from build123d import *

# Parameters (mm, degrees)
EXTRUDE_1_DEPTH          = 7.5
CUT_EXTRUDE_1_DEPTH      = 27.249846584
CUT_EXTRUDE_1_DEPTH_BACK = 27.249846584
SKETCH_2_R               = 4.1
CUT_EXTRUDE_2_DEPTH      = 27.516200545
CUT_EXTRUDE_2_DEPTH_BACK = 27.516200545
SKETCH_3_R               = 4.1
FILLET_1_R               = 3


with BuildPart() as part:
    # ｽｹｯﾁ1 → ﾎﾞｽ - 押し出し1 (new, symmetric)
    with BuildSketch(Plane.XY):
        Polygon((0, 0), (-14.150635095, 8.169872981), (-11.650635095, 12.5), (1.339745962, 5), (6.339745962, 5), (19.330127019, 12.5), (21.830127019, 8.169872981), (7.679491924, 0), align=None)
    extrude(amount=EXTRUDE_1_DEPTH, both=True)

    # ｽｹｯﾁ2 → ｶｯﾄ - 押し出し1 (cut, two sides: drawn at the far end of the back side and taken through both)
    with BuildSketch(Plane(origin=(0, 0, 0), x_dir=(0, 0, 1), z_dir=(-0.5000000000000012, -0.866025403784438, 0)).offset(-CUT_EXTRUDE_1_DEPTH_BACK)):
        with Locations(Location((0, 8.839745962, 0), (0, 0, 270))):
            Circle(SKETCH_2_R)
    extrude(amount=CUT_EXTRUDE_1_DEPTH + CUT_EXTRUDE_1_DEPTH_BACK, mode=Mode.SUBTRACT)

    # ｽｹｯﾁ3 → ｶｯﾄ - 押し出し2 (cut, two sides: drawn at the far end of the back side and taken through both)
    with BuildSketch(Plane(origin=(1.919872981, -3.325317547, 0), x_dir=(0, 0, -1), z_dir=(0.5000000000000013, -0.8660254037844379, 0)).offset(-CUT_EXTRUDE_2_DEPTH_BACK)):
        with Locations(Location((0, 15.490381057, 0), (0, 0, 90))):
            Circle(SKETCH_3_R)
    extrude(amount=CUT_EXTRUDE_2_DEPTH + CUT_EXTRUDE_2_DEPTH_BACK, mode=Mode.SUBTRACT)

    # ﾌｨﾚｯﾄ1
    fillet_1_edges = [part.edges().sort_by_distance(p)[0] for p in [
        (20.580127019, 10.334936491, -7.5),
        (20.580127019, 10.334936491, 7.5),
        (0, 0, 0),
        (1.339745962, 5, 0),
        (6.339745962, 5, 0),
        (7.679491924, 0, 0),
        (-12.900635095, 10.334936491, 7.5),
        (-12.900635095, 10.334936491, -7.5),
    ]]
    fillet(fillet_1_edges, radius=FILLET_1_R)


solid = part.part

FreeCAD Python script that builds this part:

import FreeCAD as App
import Part
import Sketcher
from FreeCAD import Vector
Q = App.Units.Quantity


def edges_at(feature, points):
    """Names of the edges that pass closest to the given points."""
    edges = feature.Shape.Edges
    near = lambda p: min(range(len(edges)), key=lambda i: edges[i].distToShape(Part.Vertex(*p))[0])
    return sorted({f"Edge{near(p) + 1}" for p in points})


def add_polygon(sketch, points):
    """Adds a closed chain of lines whose ends are joined by coincident constraints."""
    first, n = sketch.GeometryCount, len(points)
    for a, b in zip(points, points[1:] + points[:1]):
        sketch.addGeometry(Part.LineSegment(App.Vector(*a, 0), App.Vector(*b, 0)), False)
    for i in range(n):
        sketch.addConstraint(Sketcher.Constraint("Coincident", first + i, 2, first + (i + 1) % n, 1))

doc = App.newDocument("Part")
params = doc.addObject("Spreadsheet::Sheet", "Params")
for row, (alias, value) in enumerate([
    ("sketch1_width", "5 mm"),
    ("sketch1_length", "5 mm"),
    ("sketch1_length2", "15 mm"),
    ("pad1_length", "15 mm"),
    ("sketch2_diameter", "8.2 mm"),
    ("sketch3_diameter", "8.2 mm"),
    ("fillet_radius", "3 mm"),
], start=1):
    params.set(f"A{row}", alias)
    params.set(f"B{row}", "=" + value)
    params.setAlias(f"B{row}", alias)

body = doc.addObject("PartDesign::Body", "Body")

sketch1 = doc.addObject("Sketcher::SketchObject", "Sketch")
body.addObject(sketch1)
sketch1.AttachmentSupport = (doc.XY_Plane, [""])
sketch1.MapMode = "FlatFace"
add_polygon(sketch1, [(-14, 8), (0, 0), (8, 0), (22, 8), (19, 12), (6, 5), (1, 5), (-12, 12)])
sketch1.addConstraint(Sketcher.Constraint("Horizontal", 1))
sketch1.addConstraint(Sketcher.Constraint("Horizontal", 5))
sketch1.addConstraint(Sketcher.Constraint("Coincident", 0, 2, -1, 1))
sketch1.addConstraint(Sketcher.Constraint("Perpendicular", 2, 3))
sketch1.addConstraint(Sketcher.Constraint("Perpendicular", 3, 4))
sketch1.addConstraint(Sketcher.Constraint("Parallel", 0, 6))
sketch1.addConstraint(Sketcher.Constraint("Perpendicular", 6, 7))
sketch1.addConstraint(Sketcher.Constraint("Horizontal", 3, 2, 6, 2))
sketch1.addConstraint(Sketcher.Constraint("Horizontal", 2, 2, 7, 2))
sketch1.addConstraint(Sketcher.Constraint("Equal", 0, 2))
sketch1.addConstraint(Sketcher.Constraint("DistanceX", 5, 2, 5, 1, Q("5 mm")))
sketch1.addConstraint(Sketcher.Constraint("Angle", 0, Q("-30 deg")))
sketch1.addConstraint(Sketcher.Constraint("Distance", 3, Q("5 mm")))
sketch1.addConstraint(Sketcher.Constraint("Distance", 4, Q("15 mm")))
sketch1.addConstraint(Sketcher.Constraint("DistanceY", -1, 1, 4, 2, Q("5 mm")))
sketch1.setExpression("Constraints[18]", "Params.sketch1_width")
sketch1.setExpression("Constraints[20]", "Params.sketch1_length")
sketch1.setExpression("Constraints[21]", "Params.sketch1_length2")
pad1 = doc.addObject("PartDesign::Pad", "Pad")
body.addObject(pad1)
pad1.Profile = sketch1
pad1.setExpression("Length", "Params.pad1_length")
pad1.Midplane = True

sketch2 = doc.addObject("Sketcher::SketchObject", "Sketch001")
body.addObject(sketch2)
sketch2.Placement = App.Placement(Vector(0, 0, 0), App.Rotation(Vector(0, 0, 1), Vector(-0.866025404, 0.5, 0), Vector(-0.5, -0.866025404, 0), "ZXY"))
sketch2.addGeometry(Part.Circle(Vector(0, 8.8, 0), Vector(0, 0, 1), 4.1), False)
sketch2.addConstraint(Sketcher.Constraint("PointOnObject", 0, 3, -2))
sketch2.addConstraint(Sketcher.Constraint("Diameter", 0, Q("8.2 mm")))
sketch2.addConstraint(Sketcher.Constraint("DistanceY", -1, 1, 0, 3, Q("8.839746 mm")))
sketch2.setExpression("Constraints[1]", "Params.sketch2_diameter")
pocket1 = doc.addObject("PartDesign::Pocket", "Pocket")
body.addObject(pocket1)
pocket1.Profile = sketch2
pocket1.Type = "ThroughAll"
pocket1.Midplane = True

sketch3 = doc.addObject("Sketcher::SketchObject", "Sketch002")
body.addObject(sketch3)
sketch3.Placement = App.Placement(Vector(1.919873, -3.325318, 0), App.Rotation(Vector(0, 0, -1), Vector(0.866025404, 0.5, 0), Vector(0.5, -0.866025404, 0), "ZXY"))
sketch3.addGeometry(Part.Circle(Vector(0, 15.5, 0), Vector(0, 0, 1), 4.1), False)
sketch3.addConstraint(Sketcher.Constraint("PointOnObject", 0, 3, -2))
sketch3.addConstraint(Sketcher.Constraint("Diameter", 0, Q("8.2 mm")))
sketch3.addConstraint(Sketcher.Constraint("DistanceY", -1, 1, 0, 3, Q("15.490381 mm")))
sketch3.setExpression("Constraints[1]", "Params.sketch3_diameter")
pocket2 = doc.addObject("PartDesign::Pocket", "Pocket001")
body.addObject(pocket2)
pocket2.Profile = sketch3
pocket2.Type = "ThroughAll"
pocket2.Midplane = True
doc.recompute()

fillet = doc.addObject("PartDesign::Fillet", "Fillet")
body.addObject(fillet)
fillet.Base = (pocket2, edges_at(pocket2, [
    (20.58, 10.335, -7.5),
    (20.58, 10.335, 7.5),
    (0, 0, 0),
    (1.34, 5, 0),
    (6.34, 5, 0),
    (7.679, 0, 0),
    (-12.901, 10.335, 7.5),
    (-12.901, 10.335, -7.5),
]))
fillet.setExpression("Radius", "Params.fillet_radius")

doc.recompute()
